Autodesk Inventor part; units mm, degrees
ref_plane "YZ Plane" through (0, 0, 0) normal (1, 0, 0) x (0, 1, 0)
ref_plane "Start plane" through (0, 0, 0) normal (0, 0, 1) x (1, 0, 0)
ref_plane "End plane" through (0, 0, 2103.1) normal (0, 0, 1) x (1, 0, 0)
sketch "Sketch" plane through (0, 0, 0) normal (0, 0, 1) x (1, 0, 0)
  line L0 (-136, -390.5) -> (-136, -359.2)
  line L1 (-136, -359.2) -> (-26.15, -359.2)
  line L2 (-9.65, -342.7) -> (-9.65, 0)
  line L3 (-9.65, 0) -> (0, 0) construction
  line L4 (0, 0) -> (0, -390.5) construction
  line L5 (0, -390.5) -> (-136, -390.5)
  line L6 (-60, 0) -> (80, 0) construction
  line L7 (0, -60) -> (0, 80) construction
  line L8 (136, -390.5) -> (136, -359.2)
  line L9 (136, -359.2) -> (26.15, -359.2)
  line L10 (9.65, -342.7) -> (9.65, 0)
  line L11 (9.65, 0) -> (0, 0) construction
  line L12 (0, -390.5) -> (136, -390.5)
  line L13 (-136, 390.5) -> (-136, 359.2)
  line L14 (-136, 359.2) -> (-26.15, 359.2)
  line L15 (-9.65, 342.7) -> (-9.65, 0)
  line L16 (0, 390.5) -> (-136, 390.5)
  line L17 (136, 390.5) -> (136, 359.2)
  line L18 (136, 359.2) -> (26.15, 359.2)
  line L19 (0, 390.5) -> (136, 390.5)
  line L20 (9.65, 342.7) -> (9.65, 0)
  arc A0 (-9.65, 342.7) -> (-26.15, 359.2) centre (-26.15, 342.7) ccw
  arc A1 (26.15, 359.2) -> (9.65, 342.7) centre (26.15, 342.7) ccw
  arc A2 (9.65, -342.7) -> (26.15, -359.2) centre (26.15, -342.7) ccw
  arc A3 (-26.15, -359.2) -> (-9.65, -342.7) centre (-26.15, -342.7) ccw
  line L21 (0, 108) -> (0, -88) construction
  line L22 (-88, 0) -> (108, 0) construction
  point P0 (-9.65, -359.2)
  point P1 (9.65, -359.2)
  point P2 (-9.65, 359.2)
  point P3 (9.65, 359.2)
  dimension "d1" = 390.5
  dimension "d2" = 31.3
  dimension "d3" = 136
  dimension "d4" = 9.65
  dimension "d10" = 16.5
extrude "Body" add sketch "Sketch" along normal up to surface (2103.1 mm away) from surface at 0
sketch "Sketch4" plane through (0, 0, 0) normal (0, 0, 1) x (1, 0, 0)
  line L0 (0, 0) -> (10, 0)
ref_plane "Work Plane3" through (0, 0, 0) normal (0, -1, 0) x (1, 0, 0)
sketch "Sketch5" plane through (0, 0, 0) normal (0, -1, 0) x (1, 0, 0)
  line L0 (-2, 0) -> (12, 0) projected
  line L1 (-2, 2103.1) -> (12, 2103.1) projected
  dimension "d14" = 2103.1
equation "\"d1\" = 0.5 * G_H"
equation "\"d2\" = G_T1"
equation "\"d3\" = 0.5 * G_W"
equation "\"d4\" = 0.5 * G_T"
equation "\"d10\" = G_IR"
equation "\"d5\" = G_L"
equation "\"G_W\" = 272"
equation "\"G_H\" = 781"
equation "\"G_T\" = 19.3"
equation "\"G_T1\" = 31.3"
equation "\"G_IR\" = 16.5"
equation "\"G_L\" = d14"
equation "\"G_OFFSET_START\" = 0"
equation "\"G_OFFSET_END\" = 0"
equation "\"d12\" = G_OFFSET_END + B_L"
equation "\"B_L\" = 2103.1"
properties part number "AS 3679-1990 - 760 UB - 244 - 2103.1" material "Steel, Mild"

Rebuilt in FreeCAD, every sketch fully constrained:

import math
import FreeCAD as App
import Part
import Sketcher

doc = App.newDocument("Part")
body = doc.addObject("PartDesign::Body", "Body")

sketch1 = doc.addObject("Sketcher::SketchObject", "Sketch")
body.addObject(sketch1)
sketch1.AttachmentSupport = (doc.XY_Plane, [""])
sketch1.MapMode = "FlatFace"
sketch1.addGeometry(Part.LineSegment(App.Vector(-136, -359.2, 0), App.Vector(-136, -390.5, 0)), False)
sketch1.addGeometry(Part.LineSegment(App.Vector(-136, -390.5, 0), App.Vector(136, -390.5, 0)), False)
sketch1.addGeometry(Part.LineSegment(App.Vector(136, -390.5, 0), App.Vector(136, -359.2, 0)), False)
sketch1.addGeometry(Part.LineSegment(App.Vector(136, -359.2, 0), App.Vector(26.15, -359.2, 0)), False)
sketch1.addGeometry(Part.ArcOfCircle(Part.Circle(App.Vector(26.15, -342.7, 0), App.Vector(0, 0, 1), 16.5), math.radians(180), math.radians(270)), False)
sketch1.addGeometry(Part.LineSegment(App.Vector(9.65, -342.7, 0), App.Vector(9.65, 342.7, 0)), False)
sketch1.addGeometry(Part.ArcOfCircle(Part.Circle(App.Vector(26.15, 342.7, 0), App.Vector(0, 0, 1), 16.5), math.radians(90), math.radians(180)), False)
sketch1.addGeometry(Part.LineSegment(App.Vector(26.15, 359.2, 0), App.Vector(136, 359.2, 0)), False)
sketch1.addGeometry(Part.LineSegment(App.Vector(136, 359.2, 0), App.Vector(136, 390.5, 0)), False)
sketch1.addGeometry(Part.LineSegment(App.Vector(136, 390.5, 0), App.Vector(-136, 390.5, 0)), False)
sketch1.addGeometry(Part.LineSegment(App.Vector(-136, 390.5, 0), App.Vector(-136, 359.2, 0)), False)
sketch1.addGeometry(Part.LineSegment(App.Vector(-136, 359.2, 0), App.Vector(-26.15, 359.2, 0)), False)
sketch1.addGeometry(Part.ArcOfCircle(Part.Circle(App.Vector(-26.15, 342.7, 0), App.Vector(0, 0, 1), 16.5), math.radians(0), math.radians(90)), False)
sketch1.addGeometry(Part.LineSegment(App.Vector(-9.65, 342.7, 0), App.Vector(-9.65, -342.7, 0)), False)
sketch1.addGeometry(Part.ArcOfCircle(Part.Circle(App.Vector(-26.15, -342.7, 0), App.Vector(0, 0, 1), 16.5), math.radians(-90), math.radians(0)), False)
sketch1.addGeometry(Part.LineSegment(App.Vector(-26.15, -359.2, 0), App.Vector(-136, -359.2, 0)), False)
sketch1.addConstraint(Sketcher.Constraint("Coincident", 0, 2, 1, 1))
sketch1.addConstraint(Sketcher.Constraint("Coincident", 1, 2, 2, 1))
sketch1.addConstraint(Sketcher.Constraint("Coincident", 2, 2, 3, 1))
sketch1.addConstraint(Sketcher.Constraint("Tangent", 3, 2, 4, 2))
sketch1.addConstraint(Sketcher.Constraint("Tangent", 4, 1, 5, 1))
sketch1.addConstraint(Sketcher.Constraint("Tangent", 5, 2, 6, 2))
sketch1.addConstraint(Sketcher.Constraint("Tangent", 6, 1, 7, 1))
sketch1.addConstraint(Sketcher.Constraint("Coincident", 7, 2, 8, 1))
sketch1.addConstraint(Sketcher.Constraint("Coincident", 8, 2, 9, 1))
sketch1.addConstraint(Sketcher.Constraint("Coincident", 9, 2, 10, 1))
sketch1.addConstraint(Sketcher.Constraint("Coincident", 10, 2, 11, 1))
sketch1.addConstraint(Sketcher.Constraint("Tangent", 11, 2, 12, 2))
sketch1.addConstraint(Sketcher.Constraint("Tangent", 12, 1, 13, 1))
sketch1.addConstraint(Sketcher.Constraint("Tangent", 13, 2, 14, 2))
sketch1.addConstraint(Sketcher.Constraint("Tangent", 14, 1, 15, 1))
sketch1.addConstraint(Sketcher.Constraint("Coincident", 15, 2, 0, 1))
sketch1.addConstraint(Sketcher.Constraint("Vertical", 0))
sketch1.addConstraint(Sketcher.Constraint("Horizontal", 1))
sketch1.addConstraint(Sketcher.Constraint("Vertical", 2))
sketch1.addConstraint(Sketcher.Constraint("Horizontal", 3))
sketch1.addConstraint(Sketcher.Constraint("Vertical", 5))
sketch1.addConstraint(Sketcher.Constraint("Horizontal", 7))
sketch1.addConstraint(Sketcher.Constraint("Vertical", 8))
sketch1.addConstraint(Sketcher.Constraint("Horizontal", 9))
sketch1.addConstraint(Sketcher.Constraint("Vertical", 10))
sketch1.addConstraint(Sketcher.Constraint("Horizontal", 11))
sketch1.addConstraint(Sketcher.Constraint("Vertical", 13))
sketch1.addConstraint(Sketcher.Constraint("Horizontal", 15))
sketch1.addConstraint(Sketcher.Constraint("Equal", 4, 6))
sketch1.addConstraint(Sketcher.Constraint("Equal", 6, 12))
sketch1.addConstraint(Sketcher.Constraint("Equal", 12, 14))
sketch1.addConstraint(Sketcher.Constraint("Symmetric", 4, 3, 12, 3, -1, 1))
sketch1.addConstraint(Sketcher.Constraint("Symmetric", 0, 2, 8, 2, -1, 1))
sketch1.addConstraint(Sketcher.Constraint("Symmetric", 7, 2, 10, 2, -2))
sketch1.addConstraint(Sketcher.Constraint("Symmetric", 2, 2, 15, 2, -2))
sketch1.addConstraint(Sketcher.Constraint("Radius", 4, 16.5))
sketch1.addConstraint(Sketcher.Constraint("DistanceY", 0, 2, 0, 1, 31.3))
sketch1.addConstraint(Sketcher.Constraint("DistanceX", 0, 2, -1, 1, 136.0))
sketch1.addConstraint(Sketcher.Constraint("DistanceY", 0, 2, -1, 1, 390.5))
sketch1.addConstraint(Sketcher.Constraint("DistanceX", -1, 1, 4, 1, 9.65))
pad1 = doc.addObject("PartDesign::Pad", "Pad")
body.addObject(pad1)
pad1.Profile = sketch1
pad1.Length = 2103.1

doc.recompute()
